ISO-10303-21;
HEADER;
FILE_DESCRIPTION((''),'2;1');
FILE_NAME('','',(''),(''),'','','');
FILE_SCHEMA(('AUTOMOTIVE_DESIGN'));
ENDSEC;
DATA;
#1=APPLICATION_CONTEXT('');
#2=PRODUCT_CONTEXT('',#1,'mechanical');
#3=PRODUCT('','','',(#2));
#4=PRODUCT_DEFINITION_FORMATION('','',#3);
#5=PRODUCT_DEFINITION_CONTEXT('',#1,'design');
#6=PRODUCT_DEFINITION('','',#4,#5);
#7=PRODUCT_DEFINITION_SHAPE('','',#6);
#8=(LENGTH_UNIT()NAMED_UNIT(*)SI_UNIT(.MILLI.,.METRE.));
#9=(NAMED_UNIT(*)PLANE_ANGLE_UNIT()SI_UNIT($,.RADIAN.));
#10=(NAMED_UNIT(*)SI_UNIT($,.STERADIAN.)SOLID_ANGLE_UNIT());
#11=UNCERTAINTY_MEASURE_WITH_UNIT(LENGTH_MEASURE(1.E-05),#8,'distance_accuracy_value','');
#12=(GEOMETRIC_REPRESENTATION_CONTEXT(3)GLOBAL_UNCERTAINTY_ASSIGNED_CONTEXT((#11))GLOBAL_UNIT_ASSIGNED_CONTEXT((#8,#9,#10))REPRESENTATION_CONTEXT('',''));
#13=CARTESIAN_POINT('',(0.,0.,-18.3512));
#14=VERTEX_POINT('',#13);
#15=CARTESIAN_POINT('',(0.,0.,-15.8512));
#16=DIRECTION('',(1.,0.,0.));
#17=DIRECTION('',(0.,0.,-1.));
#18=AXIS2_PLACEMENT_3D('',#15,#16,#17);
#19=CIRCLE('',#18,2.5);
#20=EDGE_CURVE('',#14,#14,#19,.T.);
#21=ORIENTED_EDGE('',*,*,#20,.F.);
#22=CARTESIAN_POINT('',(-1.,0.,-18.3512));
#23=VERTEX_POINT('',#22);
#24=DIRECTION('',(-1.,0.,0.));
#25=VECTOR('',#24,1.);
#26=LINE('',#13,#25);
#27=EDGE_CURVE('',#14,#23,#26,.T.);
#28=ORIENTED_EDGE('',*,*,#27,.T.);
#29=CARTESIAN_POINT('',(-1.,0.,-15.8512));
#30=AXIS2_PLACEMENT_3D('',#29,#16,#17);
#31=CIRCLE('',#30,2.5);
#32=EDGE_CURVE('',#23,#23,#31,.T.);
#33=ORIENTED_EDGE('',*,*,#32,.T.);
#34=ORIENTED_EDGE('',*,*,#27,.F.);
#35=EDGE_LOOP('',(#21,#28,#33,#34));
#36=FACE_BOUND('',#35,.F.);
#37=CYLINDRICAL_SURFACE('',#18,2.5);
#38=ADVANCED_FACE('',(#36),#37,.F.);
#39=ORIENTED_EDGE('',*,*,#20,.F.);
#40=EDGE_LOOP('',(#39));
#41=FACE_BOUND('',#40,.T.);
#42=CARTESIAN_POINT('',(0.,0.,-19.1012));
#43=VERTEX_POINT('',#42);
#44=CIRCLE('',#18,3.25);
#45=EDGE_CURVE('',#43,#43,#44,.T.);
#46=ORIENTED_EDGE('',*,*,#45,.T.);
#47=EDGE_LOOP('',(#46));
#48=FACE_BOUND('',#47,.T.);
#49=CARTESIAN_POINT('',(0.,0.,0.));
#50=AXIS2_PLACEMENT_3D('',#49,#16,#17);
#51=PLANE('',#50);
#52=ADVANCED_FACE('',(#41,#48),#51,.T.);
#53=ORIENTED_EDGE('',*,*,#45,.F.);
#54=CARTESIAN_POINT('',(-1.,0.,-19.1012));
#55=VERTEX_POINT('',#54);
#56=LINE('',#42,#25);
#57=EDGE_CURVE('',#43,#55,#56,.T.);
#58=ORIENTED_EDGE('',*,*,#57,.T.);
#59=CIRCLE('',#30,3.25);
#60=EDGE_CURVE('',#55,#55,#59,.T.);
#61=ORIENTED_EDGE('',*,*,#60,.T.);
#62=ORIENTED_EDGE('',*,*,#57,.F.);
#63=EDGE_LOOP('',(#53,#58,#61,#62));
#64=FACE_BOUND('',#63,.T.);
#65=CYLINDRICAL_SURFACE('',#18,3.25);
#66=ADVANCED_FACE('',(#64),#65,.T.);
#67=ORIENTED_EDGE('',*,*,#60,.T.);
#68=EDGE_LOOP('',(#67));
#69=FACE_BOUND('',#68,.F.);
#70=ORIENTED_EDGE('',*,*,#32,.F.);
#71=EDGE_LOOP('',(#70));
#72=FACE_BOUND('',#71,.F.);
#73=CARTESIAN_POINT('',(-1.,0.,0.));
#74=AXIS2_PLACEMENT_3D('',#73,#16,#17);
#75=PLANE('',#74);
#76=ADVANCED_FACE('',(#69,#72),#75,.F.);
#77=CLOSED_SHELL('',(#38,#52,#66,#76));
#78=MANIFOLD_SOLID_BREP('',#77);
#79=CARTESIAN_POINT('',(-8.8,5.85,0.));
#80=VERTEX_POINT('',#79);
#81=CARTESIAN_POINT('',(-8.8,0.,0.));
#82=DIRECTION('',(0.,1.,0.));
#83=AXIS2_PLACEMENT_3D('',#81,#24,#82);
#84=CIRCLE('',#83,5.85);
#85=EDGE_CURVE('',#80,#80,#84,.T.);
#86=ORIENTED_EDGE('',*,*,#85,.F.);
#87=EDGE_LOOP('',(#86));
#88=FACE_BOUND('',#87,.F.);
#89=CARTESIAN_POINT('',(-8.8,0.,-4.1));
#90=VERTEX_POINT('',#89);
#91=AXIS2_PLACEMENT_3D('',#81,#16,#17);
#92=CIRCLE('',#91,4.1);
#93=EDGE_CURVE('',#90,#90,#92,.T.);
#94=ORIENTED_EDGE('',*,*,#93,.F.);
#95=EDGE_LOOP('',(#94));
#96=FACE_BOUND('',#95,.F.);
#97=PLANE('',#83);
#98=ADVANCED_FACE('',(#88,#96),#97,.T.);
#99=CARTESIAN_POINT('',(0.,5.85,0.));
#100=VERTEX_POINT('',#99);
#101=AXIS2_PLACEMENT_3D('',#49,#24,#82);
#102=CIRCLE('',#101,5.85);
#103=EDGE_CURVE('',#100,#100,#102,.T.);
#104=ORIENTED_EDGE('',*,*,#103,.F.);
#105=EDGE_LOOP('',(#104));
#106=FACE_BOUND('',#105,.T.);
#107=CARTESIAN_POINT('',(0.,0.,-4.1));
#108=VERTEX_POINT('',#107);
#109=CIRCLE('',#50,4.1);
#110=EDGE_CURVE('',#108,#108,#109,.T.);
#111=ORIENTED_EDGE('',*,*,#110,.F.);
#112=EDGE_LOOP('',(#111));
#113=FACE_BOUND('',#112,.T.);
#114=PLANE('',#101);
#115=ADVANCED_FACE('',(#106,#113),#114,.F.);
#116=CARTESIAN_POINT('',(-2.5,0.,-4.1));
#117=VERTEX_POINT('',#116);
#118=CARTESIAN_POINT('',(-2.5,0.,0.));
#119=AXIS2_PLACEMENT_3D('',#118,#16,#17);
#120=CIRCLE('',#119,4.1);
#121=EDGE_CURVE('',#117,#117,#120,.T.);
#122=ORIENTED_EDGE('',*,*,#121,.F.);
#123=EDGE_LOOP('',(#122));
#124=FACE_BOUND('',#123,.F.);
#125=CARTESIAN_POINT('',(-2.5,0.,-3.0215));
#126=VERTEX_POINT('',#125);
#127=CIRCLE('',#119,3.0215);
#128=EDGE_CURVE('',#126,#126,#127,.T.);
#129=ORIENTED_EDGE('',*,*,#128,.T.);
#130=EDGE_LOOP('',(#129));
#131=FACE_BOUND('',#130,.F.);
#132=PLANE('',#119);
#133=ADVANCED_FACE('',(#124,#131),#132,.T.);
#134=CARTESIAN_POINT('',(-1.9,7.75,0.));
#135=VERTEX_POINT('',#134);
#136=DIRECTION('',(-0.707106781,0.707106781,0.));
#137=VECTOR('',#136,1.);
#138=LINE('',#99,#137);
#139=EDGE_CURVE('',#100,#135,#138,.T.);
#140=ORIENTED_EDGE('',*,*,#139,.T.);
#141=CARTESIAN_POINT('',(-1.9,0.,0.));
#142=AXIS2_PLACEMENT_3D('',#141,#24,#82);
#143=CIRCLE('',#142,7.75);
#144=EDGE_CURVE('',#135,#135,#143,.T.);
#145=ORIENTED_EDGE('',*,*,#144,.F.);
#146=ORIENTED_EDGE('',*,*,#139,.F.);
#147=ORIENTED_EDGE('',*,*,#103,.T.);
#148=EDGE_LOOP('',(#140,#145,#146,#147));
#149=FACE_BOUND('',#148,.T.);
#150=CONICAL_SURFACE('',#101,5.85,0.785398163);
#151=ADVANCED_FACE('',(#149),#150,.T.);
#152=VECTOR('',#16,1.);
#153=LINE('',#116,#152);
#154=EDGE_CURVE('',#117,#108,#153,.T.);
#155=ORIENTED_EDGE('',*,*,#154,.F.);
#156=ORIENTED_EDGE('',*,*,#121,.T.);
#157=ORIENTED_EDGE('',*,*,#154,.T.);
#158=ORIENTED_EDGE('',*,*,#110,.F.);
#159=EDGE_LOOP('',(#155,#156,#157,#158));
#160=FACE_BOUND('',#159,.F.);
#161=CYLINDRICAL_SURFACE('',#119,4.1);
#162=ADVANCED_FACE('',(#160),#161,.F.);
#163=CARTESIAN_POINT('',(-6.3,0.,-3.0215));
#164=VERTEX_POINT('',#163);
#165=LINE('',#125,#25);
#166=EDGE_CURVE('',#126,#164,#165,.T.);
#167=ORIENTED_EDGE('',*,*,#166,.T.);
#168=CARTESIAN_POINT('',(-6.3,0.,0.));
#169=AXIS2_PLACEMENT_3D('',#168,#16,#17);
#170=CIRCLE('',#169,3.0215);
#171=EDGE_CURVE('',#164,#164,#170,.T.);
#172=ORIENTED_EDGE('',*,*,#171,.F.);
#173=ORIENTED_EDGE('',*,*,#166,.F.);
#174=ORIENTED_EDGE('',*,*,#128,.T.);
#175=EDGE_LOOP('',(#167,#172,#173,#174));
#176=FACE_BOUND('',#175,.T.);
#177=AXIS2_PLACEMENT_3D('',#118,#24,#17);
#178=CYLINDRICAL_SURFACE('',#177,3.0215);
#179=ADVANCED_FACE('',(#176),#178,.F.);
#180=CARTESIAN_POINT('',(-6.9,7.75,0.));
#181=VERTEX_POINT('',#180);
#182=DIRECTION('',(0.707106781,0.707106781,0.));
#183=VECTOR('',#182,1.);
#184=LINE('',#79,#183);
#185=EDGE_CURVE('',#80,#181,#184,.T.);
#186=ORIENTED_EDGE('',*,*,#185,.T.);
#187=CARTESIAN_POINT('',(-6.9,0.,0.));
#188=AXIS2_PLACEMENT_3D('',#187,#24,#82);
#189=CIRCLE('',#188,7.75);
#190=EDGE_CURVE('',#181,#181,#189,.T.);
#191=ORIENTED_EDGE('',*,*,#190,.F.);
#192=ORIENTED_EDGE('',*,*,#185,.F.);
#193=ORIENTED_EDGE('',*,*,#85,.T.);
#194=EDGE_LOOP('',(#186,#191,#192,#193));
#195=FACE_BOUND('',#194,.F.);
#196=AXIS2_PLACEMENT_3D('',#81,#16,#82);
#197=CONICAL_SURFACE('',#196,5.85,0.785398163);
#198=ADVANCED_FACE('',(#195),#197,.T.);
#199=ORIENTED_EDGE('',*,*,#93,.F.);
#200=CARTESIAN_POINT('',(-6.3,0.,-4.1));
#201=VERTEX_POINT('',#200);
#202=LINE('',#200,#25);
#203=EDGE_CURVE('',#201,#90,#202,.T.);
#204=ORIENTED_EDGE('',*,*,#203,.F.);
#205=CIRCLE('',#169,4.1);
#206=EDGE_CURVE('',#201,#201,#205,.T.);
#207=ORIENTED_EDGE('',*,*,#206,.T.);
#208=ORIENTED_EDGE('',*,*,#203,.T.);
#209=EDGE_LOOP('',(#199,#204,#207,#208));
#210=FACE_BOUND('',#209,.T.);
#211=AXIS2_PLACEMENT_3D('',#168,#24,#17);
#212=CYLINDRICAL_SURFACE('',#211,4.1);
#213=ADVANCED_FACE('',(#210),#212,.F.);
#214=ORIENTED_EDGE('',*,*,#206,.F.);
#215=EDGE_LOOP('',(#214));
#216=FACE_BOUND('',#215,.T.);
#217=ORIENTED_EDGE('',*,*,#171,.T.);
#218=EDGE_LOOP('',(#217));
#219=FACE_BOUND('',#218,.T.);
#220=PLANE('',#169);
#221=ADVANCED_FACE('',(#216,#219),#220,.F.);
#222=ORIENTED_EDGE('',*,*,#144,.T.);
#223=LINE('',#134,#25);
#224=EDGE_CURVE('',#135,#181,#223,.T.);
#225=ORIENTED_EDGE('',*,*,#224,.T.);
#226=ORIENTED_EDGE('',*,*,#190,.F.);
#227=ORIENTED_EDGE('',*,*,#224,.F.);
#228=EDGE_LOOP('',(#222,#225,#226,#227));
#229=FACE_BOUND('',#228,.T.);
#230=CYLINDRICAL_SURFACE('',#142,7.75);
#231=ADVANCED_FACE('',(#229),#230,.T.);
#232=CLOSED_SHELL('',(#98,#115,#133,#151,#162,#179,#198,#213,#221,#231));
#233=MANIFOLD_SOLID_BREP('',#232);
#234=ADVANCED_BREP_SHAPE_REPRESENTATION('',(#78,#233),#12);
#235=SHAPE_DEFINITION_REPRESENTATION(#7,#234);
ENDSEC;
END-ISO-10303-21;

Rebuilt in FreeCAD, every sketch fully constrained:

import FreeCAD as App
import Part
import Sketcher

doc = App.newDocument("Part")
body = doc.addObject("PartDesign::Body", "Body")
body.AllowCompound = True

sketch1 = body.newObject("Sketcher::SketchObject", "Sketch")
sketch1.AttachmentSupport = (doc.getObject("XY_Plane"), [""])
sketch1.MapMode = "FlatFace"
sketch1.addGeometry([
    Part.LineSegment(App.Vector(0, 0, 0), App.Vector(0, 5.8, 0)),
    Part.LineSegment(App.Vector(0, 5.8, 0), App.Vector(-1.9, 7.8, 0)),
    Part.LineSegment(App.Vector(-1.9, 7.8, 0), App.Vector(-6.9, 7.8, 0)),
    Part.LineSegment(App.Vector(-6.9, 7.8, 0), App.Vector(-8.8, 5.8, 0)),
    Part.LineSegment(App.Vector(-8.8, 5.8, 0), App.Vector(-8.8, 0, 0)),
    Part.LineSegment(App.Vector(-8.8, 0, 0), App.Vector(0, 0, 0)),
], False)
sketch1.addConstraint([
    Sketcher.Constraint("Coincident", 0, 2, 1, 1),
    Sketcher.Constraint("Coincident", 1, 2, 2, 1),
    Sketcher.Constraint("Coincident", 2, 2, 3, 1),
    Sketcher.Constraint("Coincident", 3, 2, 4, 1),
    Sketcher.Constraint("Coincident", 4, 2, 5, 1),
    Sketcher.Constraint("Coincident", 5, 2, 0, 1),
    Sketcher.Constraint("Vertical", 0),
    Sketcher.Constraint("Horizontal", 2),
    Sketcher.Constraint("Vertical", 4),
    Sketcher.Constraint("Horizontal", 5),
    Sketcher.Constraint("Coincident", 5, 2, -1, 1),
    Sketcher.Constraint("Perpendicular", 1, 3),
    Sketcher.Constraint("Horizontal", 0, 2, 3, 2),
    Sketcher.Constraint("Equal", 1, 3),
    Sketcher.Constraint("DistanceX", 2, 2, 2, 1, 5.0),
    Sketcher.Constraint("DistanceX", 5, 1, 5, 2, 8.8),
    Sketcher.Constraint("DistanceY", -1, 1, 1, 2, 7.75),
])
revolution = body.newObject("PartDesign::Revolution", "Revolution")
revolution.Profile = sketch1
revolution.ReferenceAxis = (sketch1, ["H_Axis"])
revolution.Angle = 360

sketch2 = body.newObject("Sketcher::SketchObject", "Sketch001")
sketch2.AttachmentSupport = (doc.getObject("YZ_Plane"), [""])
sketch2.MapMode = "FlatFace"
sketch2.addGeometry(Part.Circle(App.Vector(0, 0, 0), App.Vector(0, 0, 1), 2.5), False)
sketch2.addConstraint([
    Sketcher.Constraint("Coincident", 0, 3, -1, 1),
    Sketcher.Constraint("Diameter", 0, 5.1),
])
pocket1 = body.newObject("PartDesign::Pocket", "Pocket")
pocket1.Profile = sketch2
pocket1.Type = "ThroughAll"

sketch3 = body.newObject("Sketcher::SketchObject", "Sketch002")
sketch3.AttachmentSupport = (doc.getObject("XZ_Plane"), [""])
sketch3.MapMode = "FlatFace"
sketch3.addGeometry([
    Part.LineSegment(App.Vector(-8.8, 0, 0), App.Vector(0, 0, 0)),
    Part.LineSegment(App.Vector(0, 0, 0), App.Vector(0, -4.1, 0)),
    Part.LineSegment(App.Vector(0, -4.1, 0), App.Vector(-2.5, -4.1, 0)),
    Part.LineSegment(App.Vector(-2.5, -4.1, 0), App.Vector(-2.5, -3, 0)),
    Part.LineSegment(App.Vector(-2.5, -3, 0), App.Vector(-6.3, -3, 0)),
    Part.LineSegment(App.Vector(-6.3, -3, 0), App.Vector(-6.3, -4.1, 0)),
    Part.LineSegment(App.Vector(-6.3, -4.1, 0), App.Vector(-8.8, -4.1, 0)),
    Part.LineSegment(App.Vector(-8.8, -4.1, 0), App.Vector(-8.8, 0, 0)),
], False)
sketch3.addConstraint([
    Sketcher.Constraint("Coincident", 0, 2, 1, 1),
    Sketcher.Constraint("Coincident", 1, 2, 2, 1),
    Sketcher.Constraint("Coincident", 2, 2, 3, 1),
    Sketcher.Constraint("Coincident", 3, 2, 4, 1),
    Sketcher.Constraint("Coincident", 4, 2, 5, 1),
    Sketcher.Constraint("Coincident", 5, 2, 6, 1),
    Sketcher.Constraint("Coincident", 6, 2, 7, 1),
    Sketcher.Constraint("Coincident", 7, 2, 0, 1),
    Sketcher.Constraint("Horizontal", 0),
    Sketcher.Constraint("Vertical", 1),
    Sketcher.Constraint("Horizontal", 2),
    Sketcher.Constraint("Vertical", 3),
    Sketcher.Constraint("Horizontal", 4),
    Sketcher.Constraint("Vertical", 5),
    Sketcher.Constraint("Horizontal", 6),
    Sketcher.Constraint("Vertical", 7),
    Sketcher.Constraint("Coincident", 0, 2, -1, 1),
    Sketcher.Constraint("Horizontal", 2, 2, 5, 2),
    Sketcher.Constraint("Equal", 2, 6),
    Sketcher.Constraint("DistanceX", 2, 2, 2, 1, 2.5),
    Sketcher.Constraint("DistanceY", 1, 2, 1, 1, 4.1),
    Sketcher.Constraint("DistanceX", 0, 1, 0, 2, 8.8),
    Sketcher.Constraint("DistanceY", 3, 1, 3, 2, 1.0785),
])
groove = body.newObject("PartDesign::Groove", "Groove")
groove.Profile = sketch3
groove.ReferenceAxis = (sketch3, ["H_Axis"])
groove.Angle = 360

sketch4 = body.newObject("Sketcher::SketchObject", "Sketch003")
sketch4.AttachmentSupport = (doc.getObject("YZ_Plane"), [""])
sketch4.MapMode = "FlatFace"
sketch4.addGeometry([
    Part.Circle(App.Vector(0, -15.9, 0), App.Vector(0, 0, 1), 3.2),
    Part.Circle(App.Vector(0, -15.9, 0), App.Vector(0, 0, 1), 2.5),
], False)
sketch4.addConstraint([
    Sketcher.Constraint("Coincident", 1, 3, 0, 3),
    Sketcher.Constraint("PointOnObject", 0, 3, -2),
    Sketcher.Constraint("Diameter", 1, 5.0),
    Sketcher.Constraint("Diameter", 0, 6.5),
    Sketcher.Constraint("DistanceY", 0, 3, -1, 1, 15.8512),
])
pad1 = body.newObject("PartDesign::Pad", "Pad")
pad1.Profile = sketch4
pad1.Length = 1
pad1.Reversed = True

doc.recompute()
